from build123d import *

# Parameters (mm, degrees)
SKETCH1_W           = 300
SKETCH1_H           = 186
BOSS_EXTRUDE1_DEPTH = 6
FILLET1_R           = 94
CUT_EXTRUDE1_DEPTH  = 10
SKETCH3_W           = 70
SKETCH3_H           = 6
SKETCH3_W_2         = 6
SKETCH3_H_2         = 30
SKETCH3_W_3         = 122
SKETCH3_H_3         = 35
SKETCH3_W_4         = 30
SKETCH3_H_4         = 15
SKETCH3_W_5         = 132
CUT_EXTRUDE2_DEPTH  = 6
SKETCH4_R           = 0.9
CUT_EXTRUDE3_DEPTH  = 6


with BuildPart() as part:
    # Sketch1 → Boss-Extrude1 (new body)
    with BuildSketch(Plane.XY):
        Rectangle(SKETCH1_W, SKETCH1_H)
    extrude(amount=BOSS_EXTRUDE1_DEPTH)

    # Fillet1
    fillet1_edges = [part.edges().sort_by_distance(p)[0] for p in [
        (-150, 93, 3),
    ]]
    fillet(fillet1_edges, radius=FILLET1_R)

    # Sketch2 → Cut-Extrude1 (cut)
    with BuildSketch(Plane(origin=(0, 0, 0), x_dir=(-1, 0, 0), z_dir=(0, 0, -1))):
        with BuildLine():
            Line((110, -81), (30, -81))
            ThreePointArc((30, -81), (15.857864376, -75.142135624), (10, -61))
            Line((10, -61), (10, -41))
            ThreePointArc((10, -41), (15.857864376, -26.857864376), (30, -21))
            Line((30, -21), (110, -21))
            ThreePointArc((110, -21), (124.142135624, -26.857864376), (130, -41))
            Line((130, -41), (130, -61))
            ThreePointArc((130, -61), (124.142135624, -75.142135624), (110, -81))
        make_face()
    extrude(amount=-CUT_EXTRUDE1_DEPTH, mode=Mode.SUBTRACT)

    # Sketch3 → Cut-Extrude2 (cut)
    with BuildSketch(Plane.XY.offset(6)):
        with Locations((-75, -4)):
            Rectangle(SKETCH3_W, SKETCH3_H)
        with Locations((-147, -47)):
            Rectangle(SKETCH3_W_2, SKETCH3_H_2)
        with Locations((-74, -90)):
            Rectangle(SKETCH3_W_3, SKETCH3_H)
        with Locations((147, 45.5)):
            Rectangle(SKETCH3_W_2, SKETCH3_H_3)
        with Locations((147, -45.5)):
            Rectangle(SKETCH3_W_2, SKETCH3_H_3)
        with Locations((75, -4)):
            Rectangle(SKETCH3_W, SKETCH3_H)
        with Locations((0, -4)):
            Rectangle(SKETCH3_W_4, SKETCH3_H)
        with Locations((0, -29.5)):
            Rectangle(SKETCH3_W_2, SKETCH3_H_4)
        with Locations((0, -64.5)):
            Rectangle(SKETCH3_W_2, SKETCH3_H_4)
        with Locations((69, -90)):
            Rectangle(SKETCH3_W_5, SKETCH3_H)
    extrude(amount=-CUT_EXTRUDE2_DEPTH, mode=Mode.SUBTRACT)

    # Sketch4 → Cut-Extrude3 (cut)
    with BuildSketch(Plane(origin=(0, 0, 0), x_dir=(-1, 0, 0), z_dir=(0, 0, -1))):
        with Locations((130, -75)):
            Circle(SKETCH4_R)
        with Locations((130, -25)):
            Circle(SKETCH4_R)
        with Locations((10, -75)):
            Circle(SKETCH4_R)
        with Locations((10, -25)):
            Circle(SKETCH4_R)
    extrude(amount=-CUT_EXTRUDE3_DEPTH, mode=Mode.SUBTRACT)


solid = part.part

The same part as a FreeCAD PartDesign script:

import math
import FreeCAD as App
import Part
import Sketcher

V = App.Vector


def edges_at(feature, points):
    """Names of the edges that pass closest to the given points."""
    edges = feature.Shape.Edges
    near = lambda p: min(range(len(edges)), key=lambda i: edges[i].distToShape(Part.Vertex(*p))[0])
    return sorted({f"Edge{near(p) + 1}" for p in points})


def add_polygon(sketch, points):
    """Adds a closed chain of lines whose ends are joined by coincident constraints."""
    first, n = sketch.GeometryCount, len(points)
    for a, b in zip(points, points[1:] + points[:1]):
        sketch.addGeometry(Part.LineSegment(App.Vector(*a, 0), App.Vector(*b, 0)), False)
    for i in range(n):
        sketch.addConstraint(Sketcher.Constraint("Coincident", first + i, 2, first + (i + 1) % n, 1))

doc = App.newDocument("Part")
body = doc.addObject("PartDesign::Body", "Body")

sketch1 = body.newObject("Sketcher::SketchObject", "Sketch")
sketch1.AttachmentSupport = (doc.getObject("XY_Plane"), [""])
sketch1.MapMode = "FlatFace"
add_polygon(sketch1, [(-150, 93), (-150, -93), (150, -93), (150, 93)])
sketch1.addConstraint(Sketcher.Constraint("Vertical", 0))
sketch1.addConstraint(Sketcher.Constraint("Horizontal", 1))
sketch1.addConstraint(Sketcher.Constraint("Vertical", 2))
sketch1.addConstraint(Sketcher.Constraint("Horizontal", 3))
sketch1.addConstraint(Sketcher.Constraint("Symmetric", 0, 2, 2, 2, -1, 1))
sketch1.addConstraint(Sketcher.Constraint("DistanceX", 1, 1, 1, 2, 300.0))
sketch1.addConstraint(Sketcher.Constraint("DistanceY", 0, 2, 0, 1, 186.0))
pad1 = body.newObject("PartDesign::Pad", "Pad")
pad1.Profile = sketch1
pad1.Length = 6
doc.recompute()

fillet = body.newObject("PartDesign::Fillet", "Fillet")
fillet.Base = (pad1, edges_at(pad1, [(-150, 93, 3)]))
fillet.Radius = 94

sketch2 = body.newObject("Sketcher::SketchObject", "Sketch001")
sketch2.AttachmentSupport = (doc.getObject("XY_Plane"), [""])
sketch2.MapMode = "FlatFace"
sketch2.addGeometry(Part.LineSegment(V(-30, -81, 0), V(-110, -81, 0)), False)
sketch2.addGeometry(Part.ArcOfCircle(Part.Circle(V(-110, -61, 0), V(0, 0, 1), 20), math.radians(180), math.radians(270)), False)
sketch2.addGeometry(Part.LineSegment(V(-130, -61, 0), V(-130, -41, 0)), False)
sketch2.addGeometry(Part.ArcOfCircle(Part.Circle(V(-110, -41, 0), V(0, 0, 1), 20), math.radians(90), math.radians(180)), False)
sketch2.addGeometry(Part.LineSegment(V(-110, -21, 0), V(-30, -21, 0)), False)
sketch2.addGeometry(Part.ArcOfCircle(Part.Circle(V(-30, -41, 0), V(0, 0, 1), 20), math.radians(0), math.radians(90)), False)
sketch2.addGeometry(Part.LineSegment(V(-10, -41, 0), V(-10, -61, 0)), False)
sketch2.addGeometry(Part.ArcOfCircle(Part.Circle(V(-30, -61, 0), V(0, 0, 1), 20), math.radians(-90), math.radians(0)), False)
sketch2.addConstraint(Sketcher.Constraint("Tangent", 0, 2, 1, 2))
sketch2.addConstraint(Sketcher.Constraint("Tangent", 1, 1, 2, 1))
sketch2.addConstraint(Sketcher.Constraint("Tangent", 2, 2, 3, 2))
sketch2.addConstraint(Sketcher.Constraint("Tangent", 3, 1, 4, 1))
sketch2.addConstraint(Sketcher.Constraint("Tangent", 4, 2, 5, 2))
sketch2.addConstraint(Sketcher.Constraint("Tangent", 5, 1, 6, 1))
sketch2.addConstraint(Sketcher.Constraint("Tangent", 6, 2, 7, 2))
sketch2.addConstraint(Sketcher.Constraint("Tangent", 7, 1, 0, 1))
sketch2.addConstraint(Sketcher.Constraint("Horizontal", 0))
sketch2.addConstraint(Sketcher.Constraint("Vertical", 2))
sketch2.addConstraint(Sketcher.Constraint("Horizontal", 4))
sketch2.addConstraint(Sketcher.Constraint("Vertical", 6))
sketch2.addConstraint(Sketcher.Constraint("Equal", 1, 3))
sketch2.addConstraint(Sketcher.Constraint("Equal", 3, 5))
sketch2.addConstraint(Sketcher.Constraint("Equal", 5, 7))
sketch2.addConstraint(Sketcher.Constraint("Radius", 1, 20.0))
sketch2.addConstraint(Sketcher.Constraint("DistanceX", 0, 2, 0, 1, 80.0))
sketch2.addConstraint(Sketcher.Constraint("DistanceY", 2, 1, 2, 2, 20.0))
sketch2.addConstraint(Sketcher.Constraint("DistanceX", 1, 3, -1, 1, 110.0))
sketch2.addConstraint(Sketcher.Constraint("DistanceY", 1, 3, -1, 1, 61.0))
pocket1 = body.newObject("PartDesign::Pocket", "Pocket")
pocket1.Profile = sketch2
pocket1.Length = 10
pocket1.Reversed = True

sketch3 = body.newObject("Sketcher::SketchObject", "Sketch002")
sketch3.AttachmentSupport = (doc.getObject("XY_Plane"), [""])
sketch3.MapMode = "FlatFace"
sketch3.AttachmentOffset = App.Placement(V(0, 0, 6), App.Rotation())
add_polygon(sketch3, [(-110, -1), (-110, -7), (-40, -7), (-40, -1)])
add_polygon(sketch3, [(-150, -32), (-150, -62), (-144, -62), (-144, -32)])
add_polygon(sketch3, [(-135, -87), (-135, -93), (-13, -93), (-13, -87)])
add_polygon(sketch3, [(144, 63), (144, 28), (150, 28), (150, 63)])
add_polygon(sketch3, [(144, -28), (144, -63), (150, -63), (150, -28)])
add_polygon(sketch3, [(40, -1), (40, -7), (110, -7), (110, -1)])
add_polygon(sketch3, [(-15, -1), (-15, -7), (15, -7), (15, -1)])
add_polygon(sketch3, [(-3, -22), (-3, -37), (3, -37), (3, -22)])
add_polygon(sketch3, [(-3, -57), (-3, -72), (3, -72), (3, -57)])
add_polygon(sketch3, [(3, -87), (3, -93), (135, -93), (135, -87)])
sketch3.addConstraint(Sketcher.Constraint("Vertical", 0))
sketch3.addConstraint(Sketcher.Constraint("Horizontal", 1))
sketch3.addConstraint(Sketcher.Constraint("Vertical", 2))
sketch3.addConstraint(Sketcher.Constraint("Horizontal", 3))
sketch3.addConstraint(Sketcher.Constraint("Vertical", 4))
sketch3.addConstraint(Sketcher.Constraint("Horizontal", 5))
sketch3.addConstraint(Sketcher.Constraint("Vertical", 6))
sketch3.addConstraint(Sketcher.Constraint("Horizontal", 7))
sketch3.addConstraint(Sketcher.Constraint("Vertical", 8))
sketch3.addConstraint(Sketcher.Constraint("Horizontal", 9))
sketch3.addConstraint(Sketcher.Constraint("Vertical", 10))
sketch3.addConstraint(Sketcher.Constraint("Horizontal", 11))
sketch3.addConstraint(Sketcher.Constraint("Vertical", 12))
sketch3.addConstraint(Sketcher.Constraint("Horizontal", 13))
sketch3.addConstraint(Sketcher.Constraint("Vertical", 14))
sketch3.addConstraint(Sketcher.Constraint("Horizontal", 15))
sketch3.addConstraint(Sketcher.Constraint("Vertical", 16))
sketch3.addConstraint(Sketcher.Constraint("Horizontal", 17))
sketch3.addConstraint(Sketcher.Constraint("Vertical", 18))
sketch3.addConstraint(Sketcher.Constraint("Horizontal", 19))
sketch3.addConstraint(Sketcher.Constraint("Vertical", 20))
sketch3.addConstraint(Sketcher.Constraint("Horizontal", 21))
sketch3.addConstraint(Sketcher.Constraint("Vertical", 22))
sketch3.addConstraint(Sketcher.Constraint("Horizontal", 23))
sketch3.addConstraint(Sketcher.Constraint("Vertical", 24))
sketch3.addConstraint(Sketcher.Constraint("Horizontal", 25))
sketch3.addConstraint(Sketcher.Constraint("Vertical", 26))
sketch3.addConstraint(Sketcher.Constraint("Horizontal", 27))
sketch3.addConstraint(Sketcher.Constraint("Vertical", 28))
sketch3.addConstraint(Sketcher.Constraint("Horizontal", 29))
sketch3.addConstraint(Sketcher.Constraint("Vertical", 30))
sketch3.addConstraint(Sketcher.Constraint("Horizontal", 31))
sketch3.addConstraint(Sketcher.Constraint("Vertical", 32))
sketch3.addConstraint(Sketcher.Constraint("Horizontal", 33))
sketch3.addConstraint(Sketcher.Constraint("Vertical", 34))
sketch3.addConstraint(Sketcher.Constraint("Horizontal", 35))
sketch3.addConstraint(Sketcher.Constraint("Vertical", 36))
sketch3.addConstraint(Sketcher.Constraint("Horizontal", 37))
sketch3.addConstraint(Sketcher.Constraint("Vertical", 38))
sketch3.addConstraint(Sketcher.Constraint("Horizontal", 39))
sketch3.addConstraint(Sketcher.Constraint("Symmetric", 1, 2, 20, 2, -2))
sketch3.addConstraint(Sketcher.Constraint("Symmetric", 3, 2, 22, 2, -2))
sketch3.addConstraint(Sketcher.Constraint("Symmetric", 8, 2, 37, 2, -2))
sketch3.addConstraint(Sketcher.Constraint("Symmetric", 15, 2, 16, 2, -1))
sketch3.addConstraint(Sketcher.Constraint("Symmetric", 13, 2, 18, 2, -1))
sketch3.addConstraint(Sketcher.Constraint("Horizontal", 21, 2, 24, 2))
sketch3.addConstraint(Sketcher.Constraint("Horizontal", 23, 2, 26, 2))
sketch3.addConstraint(Sketcher.Constraint("Horizontal", 11, 2, 38, 2))
sketch3.addConstraint(Sketcher.Constraint("Vertical", 31, 2, 32, 2))
sketch3.addConstraint(Sketcher.Constraint("Vertical", 30, 2, 33, 2))
sketch3.addConstraint(Sketcher.Constraint("Vertical", 34, 2, 36, 2))
sketch3.addConstraint(Sketcher.Constraint("Equal", 7, 13))
sketch3.addConstraint(Sketcher.Constraint("Equal", 19, 29))
sketch3.addConstraint(Sketcher.Constraint("Equal", 35, 0))
sketch3.addConstraint(Sketcher.Constraint("Equal", 27, 4))
sketch3.addConstraint(Sketcher.Constraint("Equal", 2, 8))
sketch3.addConstraint(Sketcher.Constraint("Equal", 30, 32))
sketch3.addConstraint(Sketcher.Constraint("DistanceX", 1, 1, 1, 2, 70.0))
sketch3.addConstraint(Sketcher.Constraint("DistanceX", 5, 1, 5, 2, 6.0))
sketch3.addConstraint(Sketcher.Constraint("DistanceX", 9, 1, 9, 2, 122.0))
sketch3.addConstraint(Sketcher.Constraint("DistanceX", 25, 1, 25, 2, 30.0))
sketch3.addConstraint(Sketcher.Constraint("DistanceX", 37, 1, 37, 2, 132.0))
sketch3.addConstraint(Sketcher.Constraint("DistanceY", 12, 2, 12, 1, 35.0))
sketch3.addConstraint(Sketcher.Constraint("DistanceY", 28, 2, 28, 1, 15.0))
sketch3.addConstraint(Sketcher.Constraint("DistanceX", 0, 2, -1, 1, 110.0))
sketch3.addConstraint(Sketcher.Constraint("DistanceY", 0, 2, -1, 1, 7.0))
sketch3.addConstraint(Sketcher.Constraint("DistanceX", 4, 2, -1, 1, 150.0))
sketch3.addConstraint(Sketcher.Constraint("DistanceY", 4, 2, -1, 1, 62.0))
sketch3.addConstraint(Sketcher.Constraint("DistanceX", 8, 2, -1, 1, 135.0))
sketch3.addConstraint(Sketcher.Constraint("DistanceY", 8, 2, -1, 1, 93.0))
sketch3.addConstraint(Sketcher.Constraint("DistanceX", -1, 1, 12, 2, 144.0))
sketch3.addConstraint(Sketcher.Constraint("DistanceY", -1, 1, 12, 2, 28.0))
sketch3.addConstraint(Sketcher.Constraint("DistanceX", 24, 2, -1, 1, 15.0))
sketch3.addConstraint(Sketcher.Constraint("DistanceY", 28, 2, -1, 1, 37.0))
sketch3.addConstraint(Sketcher.Constraint("DistanceY", 32, 2, -1, 1, 72.0))
pocket2 = body.newObject("PartDesign::Pocket", "Pocket001")
pocket2.Profile = sketch3
pocket2.Length = 6

sketch4 = body.newObject("Sketcher::SketchObject", "Sketch003")
sketch4.AttachmentSupport = (doc.getObject("XY_Plane"), [""])
sketch4.MapMode = "FlatFace"
sketch4.addGeometry(Part.Circle(V(-130, -75, 0), V(0, 0, 1), 0.9), False)
sketch4.addGeometry(Part.Circle(V(-130, -25, 0), V(0, 0, 1), 0.9), False)
sketch4.addGeometry(Part.Circle(V(-10, -75, 0), V(0, 0, 1), 0.9), False)
sketch4.addGeometry(Part.Circle(V(-10, -25, 0), V(0, 0, 1), 0.9), False)
sketch4.addConstraint(Sketcher.Constraint("Equal", 0, 1))
sketch4.addConstraint(Sketcher.Constraint("Equal", 1, 2))
sketch4.addConstraint(Sketcher.Constraint("Equal", 2, 3))
sketch4.addConstraint(Sketcher.Constraint("Horizontal", 0, 3, 2, 3))
sketch4.addConstraint(Sketcher.Constraint("Horizontal", 1, 3, 3, 3))
sketch4.addConstraint(Sketcher.Constraint("Vertical", 0, 3, 1, 3))
sketch4.addConstraint(Sketcher.Constraint("Vertical", 2, 3, 3, 3))
sketch4.addConstraint(Sketcher.Constraint("Diameter", 0, 1.8))
sketch4.addConstraint(Sketcher.Constraint("DistanceX", 0, 3, -1, 1, 130.0))
sketch4.addConstraint(Sketcher.Constraint("DistanceY", 0, 3, -1, 1, 75.0))
sketch4.addConstraint(Sketcher.Constraint("DistanceY", 1, 3, -1, 1, 25.0))
sketch4.addConstraint(Sketcher.Constraint("DistanceX", 2, 3, -1, 1, 10.0))
pocket3 = body.newObject("PartDesign::Pocket", "Pocket002")
pocket3.Profile = sketch4
pocket3.Length = 6
pocket3.Reversed = True

doc.recompute()
